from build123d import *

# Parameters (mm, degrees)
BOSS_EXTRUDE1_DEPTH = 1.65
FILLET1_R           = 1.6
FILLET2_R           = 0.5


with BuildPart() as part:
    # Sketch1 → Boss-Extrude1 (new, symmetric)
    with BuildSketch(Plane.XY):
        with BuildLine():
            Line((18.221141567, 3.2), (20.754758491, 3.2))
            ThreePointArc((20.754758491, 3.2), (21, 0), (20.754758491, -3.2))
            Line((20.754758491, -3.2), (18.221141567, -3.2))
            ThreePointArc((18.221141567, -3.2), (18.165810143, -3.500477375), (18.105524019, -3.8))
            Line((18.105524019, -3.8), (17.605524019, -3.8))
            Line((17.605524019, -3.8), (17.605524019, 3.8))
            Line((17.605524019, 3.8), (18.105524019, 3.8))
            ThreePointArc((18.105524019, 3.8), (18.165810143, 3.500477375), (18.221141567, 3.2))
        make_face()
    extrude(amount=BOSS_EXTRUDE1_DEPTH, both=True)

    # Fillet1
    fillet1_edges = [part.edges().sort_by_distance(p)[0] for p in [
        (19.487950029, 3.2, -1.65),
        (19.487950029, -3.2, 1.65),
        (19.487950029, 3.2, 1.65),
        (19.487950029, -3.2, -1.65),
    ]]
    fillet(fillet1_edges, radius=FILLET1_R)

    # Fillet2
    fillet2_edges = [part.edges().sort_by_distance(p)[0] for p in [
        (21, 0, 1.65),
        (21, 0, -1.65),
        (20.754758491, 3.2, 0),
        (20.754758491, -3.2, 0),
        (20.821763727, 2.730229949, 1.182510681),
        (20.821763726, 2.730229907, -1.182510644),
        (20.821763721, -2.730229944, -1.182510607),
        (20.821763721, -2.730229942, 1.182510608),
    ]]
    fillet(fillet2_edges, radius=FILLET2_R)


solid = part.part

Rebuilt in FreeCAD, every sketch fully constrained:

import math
import FreeCAD as App
import Part
import Sketcher


def edges_at(feature, points):
    """Names of the edges that pass closest to the given points."""
    edges = feature.Shape.Edges
    near = lambda p: min(range(len(edges)), key=lambda i: edges[i].distToShape(Part.Vertex(*p))[0])
    return sorted({f"Edge{near(p) + 1}" for p in points})

doc = App.newDocument("Part")
body = doc.addObject("PartDesign::Body", "Body")

# Sketch on XY plane
sketch1 = body.newObject("Sketcher::SketchObject", "Sketch")
sketch1.AttachmentSupport = (doc.getObject("XY_Plane"), [""])
sketch1.MapMode = "FlatFace"
sketch1.addGeometry(Part.LineSegment(App.Vector(20.8, 3.2, 0), App.Vector(18.2, 3.2, 0)), False)
sketch1.addGeometry(Part.ArcOfCircle(Part.Circle(App.Vector(0, 0, 0), App.Vector(0, 0, 1), 18.5), math.radians(9.96), math.radians(11.85)), False)
sketch1.addGeometry(Part.LineSegment(App.Vector(18.1, 3.8, 0), App.Vector(17.6, 3.8, 0)), False)
sketch1.addGeometry(Part.LineSegment(App.Vector(17.6, 3.8, 0), App.Vector(17.6, -3.8, 0)), False)
sketch1.addGeometry(Part.LineSegment(App.Vector(17.6, -3.8, 0), App.Vector(18.1, -3.8, 0)), False)
sketch1.addGeometry(Part.ArcOfCircle(Part.Circle(App.Vector(0, 0, 0), App.Vector(0, 0, 1), 18.5), math.radians(-11.85), math.radians(-9.96)), False)
sketch1.addGeometry(Part.LineSegment(App.Vector(18.2, -3.2, 0), App.Vector(20.8, -3.2, 0)), False)
sketch1.addGeometry(Part.ArcOfCircle(Part.Circle(App.Vector(0, 0, 0), App.Vector(0, 0, 1), 21), math.radians(-8.76), math.radians(8.76)), False)
sketch1.addConstraint(Sketcher.Constraint("Coincident", 0, 2, 1, 1))
sketch1.addConstraint(Sketcher.Constraint("Coincident", 1, 2, 2, 1))
sketch1.addConstraint(Sketcher.Constraint("Coincident", 2, 2, 3, 1))
sketch1.addConstraint(Sketcher.Constraint("Coincident", 3, 2, 4, 1))
sketch1.addConstraint(Sketcher.Constraint("Coincident", 4, 2, 5, 1))
sketch1.addConstraint(Sketcher.Constraint("Coincident", 5, 2, 6, 1))
sketch1.addConstraint(Sketcher.Constraint("Coincident", 6, 2, 7, 1))
sketch1.addConstraint(Sketcher.Constraint("Coincident", 7, 2, 0, 1))
sketch1.addConstraint(Sketcher.Constraint("Horizontal", 0))
sketch1.addConstraint(Sketcher.Constraint("Horizontal", 2))
sketch1.addConstraint(Sketcher.Constraint("Vertical", 3))
sketch1.addConstraint(Sketcher.Constraint("Horizontal", 4))
sketch1.addConstraint(Sketcher.Constraint("Horizontal", 6))
sketch1.addConstraint(Sketcher.Constraint("Coincident", 1, 3, -1, 1))
sketch1.addConstraint(Sketcher.Constraint("Coincident", 5, 3, -1, 1))
sketch1.addConstraint(Sketcher.Constraint("Coincident", 7, 3, -1, 1))
sketch1.addConstraint(Sketcher.Constraint("Equal", 1, 5))
sketch1.addConstraint(Sketcher.Constraint("Vertical", 1, 2, 4, 2))
sketch1.addConstraint(Sketcher.Constraint("Vertical", 0, 2, 5, 2))
sketch1.addConstraint(Sketcher.Constraint("Radius", 7, 21.0))
sketch1.addConstraint(Sketcher.Constraint("Radius", 1, 18.5))
sketch1.addConstraint(Sketcher.Constraint("DistanceX", 2, 2, 2, 1, 0.5))
sketch1.addConstraint(Sketcher.Constraint("DistanceY", 3, 2, 3, 1, 7.6))
sketch1.addConstraint(Sketcher.Constraint("DistanceY", 3, 2, 0, 2, 7.0))
pad1 = body.newObject("PartDesign::Pad", "Pad")
pad1.Profile = sketch1
pad1.Length = 3.3
pad1.Midplane = True
doc.recompute()

fillet = body.newObject("PartDesign::Fillet", "Fillet")
fillet.Base = (pad1, edges_at(pad1, [
    (19.488, 3.2, -1.65),
    (19.488, -3.2, 1.65),
    (19.488, 3.2, 1.65),
    (19.488, -3.2, -1.65),
]))
fillet.Radius = 1.6
doc.recompute()

fillet2 = body.newObject("PartDesign::Fillet", "Fillet001")
fillet2.Base = (fillet, edges_at(fillet, [
    (21, 0, 1.65),
    (21, 0, -1.65),
    (20.755, 3.2, 0),
    (20.755, -3.2, 0),
    (20.822, 2.73, 1.183),
    (20.822, 2.73, -1.183),
    (20.822, -2.73, -1.183),
    (20.822, -2.73, 1.183),
]))
fillet2.Radius = 0.5

doc.recompute()
